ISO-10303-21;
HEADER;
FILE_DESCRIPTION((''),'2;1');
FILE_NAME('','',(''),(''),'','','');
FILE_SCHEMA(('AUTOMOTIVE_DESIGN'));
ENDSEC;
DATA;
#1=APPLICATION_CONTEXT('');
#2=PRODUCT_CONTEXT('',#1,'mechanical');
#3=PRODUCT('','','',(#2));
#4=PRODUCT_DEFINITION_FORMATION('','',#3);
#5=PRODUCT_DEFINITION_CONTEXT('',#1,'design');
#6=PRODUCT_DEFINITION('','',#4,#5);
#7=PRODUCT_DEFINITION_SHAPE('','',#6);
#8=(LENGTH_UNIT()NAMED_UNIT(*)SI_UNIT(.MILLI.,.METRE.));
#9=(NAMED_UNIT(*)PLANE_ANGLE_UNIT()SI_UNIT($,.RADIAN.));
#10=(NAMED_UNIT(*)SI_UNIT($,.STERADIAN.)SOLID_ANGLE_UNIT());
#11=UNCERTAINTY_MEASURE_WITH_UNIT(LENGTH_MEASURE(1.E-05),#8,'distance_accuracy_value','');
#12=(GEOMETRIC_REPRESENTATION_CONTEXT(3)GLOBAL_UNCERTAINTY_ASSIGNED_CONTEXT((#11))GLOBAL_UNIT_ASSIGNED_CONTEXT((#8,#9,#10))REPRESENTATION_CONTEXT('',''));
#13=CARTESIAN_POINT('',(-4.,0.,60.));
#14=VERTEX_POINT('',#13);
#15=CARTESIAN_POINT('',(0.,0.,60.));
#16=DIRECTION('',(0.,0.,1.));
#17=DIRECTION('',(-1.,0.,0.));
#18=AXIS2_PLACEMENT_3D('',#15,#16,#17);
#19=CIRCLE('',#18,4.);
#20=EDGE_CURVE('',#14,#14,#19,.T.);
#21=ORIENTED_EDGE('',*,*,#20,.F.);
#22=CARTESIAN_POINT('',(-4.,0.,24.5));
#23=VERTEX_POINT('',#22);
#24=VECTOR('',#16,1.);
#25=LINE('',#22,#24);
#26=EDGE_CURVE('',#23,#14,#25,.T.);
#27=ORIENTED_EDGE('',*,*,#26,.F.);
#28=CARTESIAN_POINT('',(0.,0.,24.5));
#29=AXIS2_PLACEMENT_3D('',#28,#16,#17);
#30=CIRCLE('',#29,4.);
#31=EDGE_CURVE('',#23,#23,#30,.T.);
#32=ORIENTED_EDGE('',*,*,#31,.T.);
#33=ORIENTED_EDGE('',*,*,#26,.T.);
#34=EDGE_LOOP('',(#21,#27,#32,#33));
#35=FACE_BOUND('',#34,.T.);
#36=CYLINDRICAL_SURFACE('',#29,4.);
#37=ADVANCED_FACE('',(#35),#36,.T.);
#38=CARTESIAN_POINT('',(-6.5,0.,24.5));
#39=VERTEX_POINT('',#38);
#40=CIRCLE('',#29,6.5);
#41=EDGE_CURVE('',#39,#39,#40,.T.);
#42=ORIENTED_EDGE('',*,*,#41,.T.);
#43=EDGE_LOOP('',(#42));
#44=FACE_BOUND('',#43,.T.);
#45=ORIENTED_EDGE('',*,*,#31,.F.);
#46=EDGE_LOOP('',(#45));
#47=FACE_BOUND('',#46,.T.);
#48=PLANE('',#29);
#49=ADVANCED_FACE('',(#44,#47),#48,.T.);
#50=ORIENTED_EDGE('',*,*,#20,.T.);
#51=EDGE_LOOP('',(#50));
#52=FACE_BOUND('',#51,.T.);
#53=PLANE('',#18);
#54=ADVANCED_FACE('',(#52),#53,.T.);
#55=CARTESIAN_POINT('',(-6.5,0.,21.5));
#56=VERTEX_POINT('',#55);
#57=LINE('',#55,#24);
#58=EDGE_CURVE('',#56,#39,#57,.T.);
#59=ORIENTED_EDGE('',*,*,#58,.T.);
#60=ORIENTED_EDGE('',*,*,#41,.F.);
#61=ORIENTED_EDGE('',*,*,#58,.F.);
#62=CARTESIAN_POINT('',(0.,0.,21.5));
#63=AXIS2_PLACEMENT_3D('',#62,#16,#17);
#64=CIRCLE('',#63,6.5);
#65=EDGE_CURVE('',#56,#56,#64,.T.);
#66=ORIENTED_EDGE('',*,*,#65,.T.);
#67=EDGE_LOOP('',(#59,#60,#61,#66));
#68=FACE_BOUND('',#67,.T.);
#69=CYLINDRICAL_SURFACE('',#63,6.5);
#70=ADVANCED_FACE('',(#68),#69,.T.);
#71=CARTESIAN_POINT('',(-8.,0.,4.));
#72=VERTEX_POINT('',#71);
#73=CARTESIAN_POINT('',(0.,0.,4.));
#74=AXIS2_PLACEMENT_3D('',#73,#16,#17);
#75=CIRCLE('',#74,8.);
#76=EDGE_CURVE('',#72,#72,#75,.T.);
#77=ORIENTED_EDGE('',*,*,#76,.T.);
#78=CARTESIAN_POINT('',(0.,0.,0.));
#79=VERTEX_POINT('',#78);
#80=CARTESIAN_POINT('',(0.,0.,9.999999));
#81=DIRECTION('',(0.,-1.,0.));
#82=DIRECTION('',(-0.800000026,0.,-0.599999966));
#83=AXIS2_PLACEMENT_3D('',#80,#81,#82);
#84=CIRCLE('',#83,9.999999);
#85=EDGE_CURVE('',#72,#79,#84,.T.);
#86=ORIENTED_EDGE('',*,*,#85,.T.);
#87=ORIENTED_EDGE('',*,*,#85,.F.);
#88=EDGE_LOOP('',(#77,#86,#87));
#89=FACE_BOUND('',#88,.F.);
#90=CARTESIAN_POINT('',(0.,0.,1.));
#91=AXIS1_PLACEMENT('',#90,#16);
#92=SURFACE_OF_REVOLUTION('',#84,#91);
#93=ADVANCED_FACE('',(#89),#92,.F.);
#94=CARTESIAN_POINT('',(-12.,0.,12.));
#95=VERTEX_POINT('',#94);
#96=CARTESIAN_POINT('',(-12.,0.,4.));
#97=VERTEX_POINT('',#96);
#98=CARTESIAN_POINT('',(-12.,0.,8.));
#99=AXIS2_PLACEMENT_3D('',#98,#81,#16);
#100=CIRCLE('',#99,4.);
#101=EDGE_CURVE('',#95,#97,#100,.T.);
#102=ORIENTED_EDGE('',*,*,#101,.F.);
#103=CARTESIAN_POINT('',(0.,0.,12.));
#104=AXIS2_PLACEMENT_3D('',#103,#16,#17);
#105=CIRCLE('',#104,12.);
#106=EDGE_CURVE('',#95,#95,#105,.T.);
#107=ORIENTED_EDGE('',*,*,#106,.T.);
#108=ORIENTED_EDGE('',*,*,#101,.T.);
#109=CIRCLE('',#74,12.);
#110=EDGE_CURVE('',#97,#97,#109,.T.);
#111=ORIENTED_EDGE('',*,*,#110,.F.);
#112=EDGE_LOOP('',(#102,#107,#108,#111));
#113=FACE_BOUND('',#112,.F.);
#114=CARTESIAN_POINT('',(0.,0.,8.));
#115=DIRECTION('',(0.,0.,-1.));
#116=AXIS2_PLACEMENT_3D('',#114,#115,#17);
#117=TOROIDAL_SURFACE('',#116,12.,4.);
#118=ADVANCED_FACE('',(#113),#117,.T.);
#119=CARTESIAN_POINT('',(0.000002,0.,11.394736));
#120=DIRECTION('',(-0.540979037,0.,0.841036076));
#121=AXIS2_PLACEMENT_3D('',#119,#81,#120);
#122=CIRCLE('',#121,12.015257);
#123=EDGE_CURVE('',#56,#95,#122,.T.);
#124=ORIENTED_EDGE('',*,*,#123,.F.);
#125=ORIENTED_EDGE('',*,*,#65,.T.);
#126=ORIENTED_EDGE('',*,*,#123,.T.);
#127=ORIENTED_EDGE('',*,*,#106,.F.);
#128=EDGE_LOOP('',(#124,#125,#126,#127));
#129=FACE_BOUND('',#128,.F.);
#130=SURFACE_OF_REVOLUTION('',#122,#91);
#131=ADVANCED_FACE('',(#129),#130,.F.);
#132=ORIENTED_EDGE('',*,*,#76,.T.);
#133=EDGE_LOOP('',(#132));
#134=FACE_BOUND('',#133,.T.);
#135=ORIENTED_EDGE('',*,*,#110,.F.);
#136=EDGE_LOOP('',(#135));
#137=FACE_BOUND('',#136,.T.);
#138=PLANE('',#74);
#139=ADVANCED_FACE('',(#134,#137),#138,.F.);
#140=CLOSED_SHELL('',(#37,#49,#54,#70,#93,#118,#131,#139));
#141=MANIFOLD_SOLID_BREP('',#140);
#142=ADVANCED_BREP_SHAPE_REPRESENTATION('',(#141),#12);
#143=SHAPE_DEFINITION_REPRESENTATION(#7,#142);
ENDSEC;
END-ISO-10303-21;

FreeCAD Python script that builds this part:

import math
import FreeCAD as App
import Part
import Sketcher

doc = App.newDocument("Part")
body = doc.addObject("PartDesign::Body", "Body")

# Sketch on XY plane
sketch1 = body.newObject("Sketcher::SketchObject", "Sketch")
sketch1.AttachmentSupport = (doc.getObject("XY_Plane"), [""])
sketch1.MapMode = "FlatFace"
sketch1.addGeometry([
    Part.ArcOfCircle(Part.Circle(App.Vector(0, 10, 0), App.Vector(0, 0, 1), 10), math.radians(-143), math.radians(-90)),  # 0
    Part.LineSegment(App.Vector(0, 0, 0), App.Vector(0, 60, 0)),  # 1
    Part.LineSegment(App.Vector(0, 60, 0), App.Vector(-4, 60, 0)),  # 2
    Part.LineSegment(App.Vector(-4, 60, 0), App.Vector(-4, 24.5, 0)),  # 3
    Part.LineSegment(App.Vector(-4, 24.5, 0), App.Vector(-6.5, 24.5, 0)),  # 4
    Part.LineSegment(App.Vector(-6.5, 24.5, 0), App.Vector(-6.5, 21.5, 0)),  # 5
    Part.ArcOfCircle(Part.Circle(App.Vector(0, 11.4, 0), App.Vector(0, 0, 1), 12), math.radians(123), math.radians(177)),  # 6
    Part.ArcOfCircle(Part.Circle(App.Vector(-12, 8, 0), App.Vector(0, 0, 1), 4), math.radians(90), math.radians(270)),  # 7
    Part.LineSegment(App.Vector(-12, 4, 0), App.Vector(-8, 4, 0)),  # 8
], False)
sketch1.addConstraint([
    Sketcher.Constraint("Coincident", 0, 2, 1, 1),
    Sketcher.Constraint("Coincident", 1, 2, 2, 1),
    Sketcher.Constraint("Coincident", 2, 2, 3, 1),
    Sketcher.Constraint("Coincident", 3, 2, 4, 1),
    Sketcher.Constraint("Coincident", 4, 2, 5, 1),
    Sketcher.Constraint("Coincident", 5, 2, 6, 1),
    Sketcher.Constraint("Coincident", 6, 2, 7, 1),
    Sketcher.Constraint("Tangent", 7, 2, 8, 1),
    Sketcher.Constraint("Coincident", 8, 2, 0, 1),
    Sketcher.Constraint("Vertical", 1),
    Sketcher.Constraint("Horizontal", 2),
    Sketcher.Constraint("Vertical", 3),
    Sketcher.Constraint("Horizontal", 4),
    Sketcher.Constraint("Vertical", 5),
    Sketcher.Constraint("Horizontal", 8),
    Sketcher.Constraint("Coincident", 0, 2, -1, 1),
    Sketcher.Constraint("PointOnObject", 0, 3, -2),
    Sketcher.Constraint("PointOnObject", 6, 3, -2),
    Sketcher.Constraint("Vertical", 7, 3, 6, 2),
    Sketcher.Constraint("Equal", 2, 8),
    Sketcher.Constraint("Radius", 0, 9.999999),
    Sketcher.Constraint("Radius", 7, 4.0),
    Sketcher.Constraint("DistanceX", 2, 2, 2, 1, 4.0),
    Sketcher.Constraint("DistanceY", 1, 1, 1, 2, 60.0),
    Sketcher.Constraint("DistanceY", 5, 2, 5, 1, 3.0),
    Sketcher.Constraint("DistanceX", 4, 2, 4, 1, 2.5),
    Sketcher.Constraint("DistanceY", 3, 2, 3, 1, 35.5),
    Sketcher.Constraint("DistanceX", 7, 3, -1, 1, 12.0),
])
revolution = body.newObject("PartDesign::Revolution", "Revolution")
revolution.Profile = sketch1
revolution.ReferenceAxis = (sketch1, ["V_Axis"])
revolution.Angle = 360
body2 = doc.addObject("PartDesign::Body", "Body001")
doc.recompute()

body.Placement = App.Placement(App.Vector(0, 0, 0), App.Rotation(App.Vector(1, 0, 0), 90))
boolean = body2.newObject("PartDesign::Boolean", "Boolean")
boolean.Type = "Fuse"
boolean.addObjects([body])

doc.recompute()
